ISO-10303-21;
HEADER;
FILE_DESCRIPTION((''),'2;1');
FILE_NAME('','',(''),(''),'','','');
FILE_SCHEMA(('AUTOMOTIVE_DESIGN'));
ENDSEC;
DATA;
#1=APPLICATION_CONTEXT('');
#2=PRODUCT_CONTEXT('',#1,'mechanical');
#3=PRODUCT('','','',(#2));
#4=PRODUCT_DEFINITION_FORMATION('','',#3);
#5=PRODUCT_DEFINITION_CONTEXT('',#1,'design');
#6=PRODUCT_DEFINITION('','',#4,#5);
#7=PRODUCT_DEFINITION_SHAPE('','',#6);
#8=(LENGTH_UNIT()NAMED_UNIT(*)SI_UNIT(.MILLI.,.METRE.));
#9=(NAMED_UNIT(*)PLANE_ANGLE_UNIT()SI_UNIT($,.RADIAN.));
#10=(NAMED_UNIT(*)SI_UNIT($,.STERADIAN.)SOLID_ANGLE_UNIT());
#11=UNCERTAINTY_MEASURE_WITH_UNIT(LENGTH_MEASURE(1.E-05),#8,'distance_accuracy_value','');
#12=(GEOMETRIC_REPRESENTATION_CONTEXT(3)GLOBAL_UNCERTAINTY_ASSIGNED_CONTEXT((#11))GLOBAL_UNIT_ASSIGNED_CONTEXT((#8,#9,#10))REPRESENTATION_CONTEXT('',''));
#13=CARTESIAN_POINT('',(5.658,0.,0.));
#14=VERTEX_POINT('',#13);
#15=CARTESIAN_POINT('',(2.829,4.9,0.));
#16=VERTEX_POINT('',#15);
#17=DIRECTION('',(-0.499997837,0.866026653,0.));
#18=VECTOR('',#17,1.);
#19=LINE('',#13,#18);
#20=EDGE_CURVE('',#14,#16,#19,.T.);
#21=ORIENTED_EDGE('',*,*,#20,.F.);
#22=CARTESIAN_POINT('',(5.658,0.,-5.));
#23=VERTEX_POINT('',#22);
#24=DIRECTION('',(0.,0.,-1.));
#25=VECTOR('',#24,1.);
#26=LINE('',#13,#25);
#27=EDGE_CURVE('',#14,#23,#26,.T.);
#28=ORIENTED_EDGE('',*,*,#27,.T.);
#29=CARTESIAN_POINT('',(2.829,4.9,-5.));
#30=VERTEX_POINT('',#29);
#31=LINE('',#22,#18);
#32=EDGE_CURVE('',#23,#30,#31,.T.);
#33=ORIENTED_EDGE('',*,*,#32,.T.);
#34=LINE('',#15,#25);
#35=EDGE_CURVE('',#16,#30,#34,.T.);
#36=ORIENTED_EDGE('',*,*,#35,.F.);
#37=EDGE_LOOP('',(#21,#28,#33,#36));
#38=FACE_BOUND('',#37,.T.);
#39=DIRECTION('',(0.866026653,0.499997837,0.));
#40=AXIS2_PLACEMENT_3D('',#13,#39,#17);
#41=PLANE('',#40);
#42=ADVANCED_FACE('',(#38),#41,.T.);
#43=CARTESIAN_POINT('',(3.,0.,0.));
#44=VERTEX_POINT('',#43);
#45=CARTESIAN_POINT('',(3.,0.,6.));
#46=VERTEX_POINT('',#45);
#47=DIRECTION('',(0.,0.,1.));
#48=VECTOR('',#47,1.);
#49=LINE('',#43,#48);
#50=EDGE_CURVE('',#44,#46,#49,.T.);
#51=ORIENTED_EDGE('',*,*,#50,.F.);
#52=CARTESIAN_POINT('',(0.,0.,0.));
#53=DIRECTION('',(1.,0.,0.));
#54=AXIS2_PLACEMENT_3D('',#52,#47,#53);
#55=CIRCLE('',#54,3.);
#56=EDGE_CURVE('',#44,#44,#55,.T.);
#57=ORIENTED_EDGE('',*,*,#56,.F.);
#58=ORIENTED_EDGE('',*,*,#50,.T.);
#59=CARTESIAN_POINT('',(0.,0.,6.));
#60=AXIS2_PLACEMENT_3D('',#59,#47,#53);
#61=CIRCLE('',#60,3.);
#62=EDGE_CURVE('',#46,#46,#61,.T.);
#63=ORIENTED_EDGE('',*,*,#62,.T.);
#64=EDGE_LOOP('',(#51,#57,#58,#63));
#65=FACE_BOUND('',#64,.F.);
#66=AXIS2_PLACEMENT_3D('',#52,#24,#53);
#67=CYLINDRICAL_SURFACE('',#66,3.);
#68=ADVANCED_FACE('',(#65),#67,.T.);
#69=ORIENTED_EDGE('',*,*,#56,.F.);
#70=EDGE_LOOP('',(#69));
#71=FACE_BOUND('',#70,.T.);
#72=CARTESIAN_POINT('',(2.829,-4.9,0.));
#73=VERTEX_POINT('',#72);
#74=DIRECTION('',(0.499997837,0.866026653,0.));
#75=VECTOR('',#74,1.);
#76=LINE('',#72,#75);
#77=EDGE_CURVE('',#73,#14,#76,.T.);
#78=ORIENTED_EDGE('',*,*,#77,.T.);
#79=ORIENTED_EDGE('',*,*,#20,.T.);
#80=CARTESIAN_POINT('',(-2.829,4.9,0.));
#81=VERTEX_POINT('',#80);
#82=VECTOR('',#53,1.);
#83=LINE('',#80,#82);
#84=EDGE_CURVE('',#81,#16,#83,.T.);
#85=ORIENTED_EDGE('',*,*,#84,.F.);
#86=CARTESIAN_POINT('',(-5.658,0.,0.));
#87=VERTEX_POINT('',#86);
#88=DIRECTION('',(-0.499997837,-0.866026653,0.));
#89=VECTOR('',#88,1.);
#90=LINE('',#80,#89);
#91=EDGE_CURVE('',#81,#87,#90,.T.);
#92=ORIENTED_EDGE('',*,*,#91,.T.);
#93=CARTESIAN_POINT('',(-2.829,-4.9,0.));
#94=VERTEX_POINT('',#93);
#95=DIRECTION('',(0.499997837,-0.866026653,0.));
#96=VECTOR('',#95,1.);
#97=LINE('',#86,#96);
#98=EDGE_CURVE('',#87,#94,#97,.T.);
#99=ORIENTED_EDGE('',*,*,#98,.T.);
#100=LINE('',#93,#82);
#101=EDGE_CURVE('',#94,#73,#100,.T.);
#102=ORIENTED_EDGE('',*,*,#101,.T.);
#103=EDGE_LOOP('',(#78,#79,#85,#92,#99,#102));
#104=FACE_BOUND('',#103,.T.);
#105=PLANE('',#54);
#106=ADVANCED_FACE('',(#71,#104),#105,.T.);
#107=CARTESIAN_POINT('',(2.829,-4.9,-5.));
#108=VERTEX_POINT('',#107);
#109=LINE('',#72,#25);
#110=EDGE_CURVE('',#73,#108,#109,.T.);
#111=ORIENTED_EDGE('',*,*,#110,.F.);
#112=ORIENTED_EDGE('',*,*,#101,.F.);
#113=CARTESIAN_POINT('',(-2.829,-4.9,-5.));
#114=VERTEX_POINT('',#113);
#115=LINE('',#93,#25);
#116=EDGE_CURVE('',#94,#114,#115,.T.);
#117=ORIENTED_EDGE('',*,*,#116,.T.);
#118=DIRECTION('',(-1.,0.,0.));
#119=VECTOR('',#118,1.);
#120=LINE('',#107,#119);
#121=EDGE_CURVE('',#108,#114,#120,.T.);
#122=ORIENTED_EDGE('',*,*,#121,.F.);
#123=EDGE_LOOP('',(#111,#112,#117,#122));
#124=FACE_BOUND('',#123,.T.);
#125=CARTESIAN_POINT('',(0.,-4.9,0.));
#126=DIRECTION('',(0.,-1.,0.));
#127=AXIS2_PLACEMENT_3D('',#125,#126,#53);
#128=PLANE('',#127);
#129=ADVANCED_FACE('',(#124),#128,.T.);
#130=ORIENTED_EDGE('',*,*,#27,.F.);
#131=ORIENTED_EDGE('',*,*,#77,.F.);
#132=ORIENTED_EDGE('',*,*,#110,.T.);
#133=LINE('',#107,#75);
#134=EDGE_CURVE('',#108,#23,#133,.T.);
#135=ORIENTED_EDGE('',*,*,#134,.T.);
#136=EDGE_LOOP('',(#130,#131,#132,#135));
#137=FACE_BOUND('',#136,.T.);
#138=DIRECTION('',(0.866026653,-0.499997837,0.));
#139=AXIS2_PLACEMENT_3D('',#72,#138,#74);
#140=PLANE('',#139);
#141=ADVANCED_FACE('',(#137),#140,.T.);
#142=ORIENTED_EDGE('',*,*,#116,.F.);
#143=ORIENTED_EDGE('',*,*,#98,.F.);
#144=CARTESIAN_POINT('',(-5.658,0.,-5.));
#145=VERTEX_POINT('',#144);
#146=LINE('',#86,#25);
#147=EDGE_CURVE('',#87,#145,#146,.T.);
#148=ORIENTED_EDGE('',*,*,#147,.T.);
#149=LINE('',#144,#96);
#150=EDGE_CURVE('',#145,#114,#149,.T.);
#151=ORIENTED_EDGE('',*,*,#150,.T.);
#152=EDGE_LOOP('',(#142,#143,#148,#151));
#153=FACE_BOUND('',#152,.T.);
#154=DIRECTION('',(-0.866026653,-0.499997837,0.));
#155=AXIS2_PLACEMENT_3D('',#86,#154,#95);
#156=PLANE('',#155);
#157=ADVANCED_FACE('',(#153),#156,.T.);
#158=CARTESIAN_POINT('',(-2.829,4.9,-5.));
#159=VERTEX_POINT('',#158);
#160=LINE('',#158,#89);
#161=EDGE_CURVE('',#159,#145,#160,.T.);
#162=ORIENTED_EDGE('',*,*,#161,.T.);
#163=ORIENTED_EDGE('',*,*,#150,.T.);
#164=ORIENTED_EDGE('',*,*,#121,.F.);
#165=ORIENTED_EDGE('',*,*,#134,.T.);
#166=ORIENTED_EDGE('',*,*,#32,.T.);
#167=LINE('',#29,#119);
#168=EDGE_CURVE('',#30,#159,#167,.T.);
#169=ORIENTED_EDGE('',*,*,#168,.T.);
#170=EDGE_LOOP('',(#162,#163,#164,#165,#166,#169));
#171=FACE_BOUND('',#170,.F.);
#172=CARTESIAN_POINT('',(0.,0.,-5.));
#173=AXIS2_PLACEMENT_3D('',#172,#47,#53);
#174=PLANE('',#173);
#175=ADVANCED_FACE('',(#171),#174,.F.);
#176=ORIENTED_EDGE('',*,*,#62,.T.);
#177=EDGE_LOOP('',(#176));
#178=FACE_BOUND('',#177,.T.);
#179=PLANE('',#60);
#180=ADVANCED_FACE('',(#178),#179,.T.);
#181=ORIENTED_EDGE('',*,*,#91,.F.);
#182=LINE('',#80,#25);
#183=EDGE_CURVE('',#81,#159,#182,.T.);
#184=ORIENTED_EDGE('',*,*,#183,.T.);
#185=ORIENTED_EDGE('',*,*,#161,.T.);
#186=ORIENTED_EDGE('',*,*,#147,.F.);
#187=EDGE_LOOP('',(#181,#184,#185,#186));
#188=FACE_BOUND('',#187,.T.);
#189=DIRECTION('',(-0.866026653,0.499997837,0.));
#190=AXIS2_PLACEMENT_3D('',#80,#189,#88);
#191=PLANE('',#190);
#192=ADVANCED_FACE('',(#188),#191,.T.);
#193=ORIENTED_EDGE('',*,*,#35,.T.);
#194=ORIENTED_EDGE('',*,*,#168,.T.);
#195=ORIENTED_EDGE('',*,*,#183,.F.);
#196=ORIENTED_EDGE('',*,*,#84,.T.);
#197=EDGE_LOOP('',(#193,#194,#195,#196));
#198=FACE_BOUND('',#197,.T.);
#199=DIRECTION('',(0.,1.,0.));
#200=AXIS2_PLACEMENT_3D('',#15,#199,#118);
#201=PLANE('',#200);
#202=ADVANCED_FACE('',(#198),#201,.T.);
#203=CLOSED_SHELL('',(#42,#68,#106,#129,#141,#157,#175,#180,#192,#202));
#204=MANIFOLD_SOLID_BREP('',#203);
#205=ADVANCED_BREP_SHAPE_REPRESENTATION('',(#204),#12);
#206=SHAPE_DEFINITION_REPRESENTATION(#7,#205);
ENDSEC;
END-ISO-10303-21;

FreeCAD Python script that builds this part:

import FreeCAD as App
import Part
import Sketcher
from FreeCAD import Vector
Q = App.Units.Quantity

doc = App.newDocument("Part")
body = doc.addObject("PartDesign::Body", "Body")

# Sketch on XY plane
sketch1 = body.newObject("Sketcher::SketchObject", "Sketch")
sketch1.AttachmentSupport = (doc.getObject("XY_Plane"), [""])
sketch1.MapMode = "FlatFace"
sketch1.addGeometry(Part.Circle(Vector(0, 0, 0), Vector(0, 0, 1), 3), False)
sketch1.addConstraint([
    Sketcher.Constraint("Coincident", 0, 3, -1, 1),
    Sketcher.Constraint("Diameter", 0, 6.0),
])
pad1 = body.newObject("PartDesign::Pad", "Pad")
pad1.Profile = sketch1
pad1.Length = 6

# Sketch on XY plane
sketch2 = body.newObject("Sketcher::SketchObject", "Sketch001")
sketch2.AttachmentSupport = (doc.getObject("XY_Plane"), [""])
sketch2.MapMode = "FlatFace"
sketch2.addGeometry([
    Part.LineSegment(Vector(6, 0, 0), Vector(3, 5, 0)),  # 0
    Part.LineSegment(Vector(3, 5, 0), Vector(-3, 5, 0)),  # 1
    Part.LineSegment(Vector(-3, 5, 0), Vector(-6, 0, 0)),  # 2
    Part.LineSegment(Vector(-6, 0, 0), Vector(-3, -5, 0)),  # 3
    Part.LineSegment(Vector(-3, -5, 0), Vector(3, -5, 0)),  # 4
    Part.LineSegment(Vector(3, -5, 0), Vector(6, 0, 0)),  # 5
], False)
sketch2.addConstraint([
    Sketcher.Constraint("Coincident", 0, 2, 1, 1),
    Sketcher.Constraint("Coincident", 1, 2, 2, 1),
    Sketcher.Constraint("Coincident", 2, 2, 3, 1),
    Sketcher.Constraint("Coincident", 3, 2, 4, 1),
    Sketcher.Constraint("Coincident", 4, 2, 5, 1),
    Sketcher.Constraint("Coincident", 5, 2, 0, 1),
    Sketcher.Constraint("Horizontal", 1),
    Sketcher.Constraint("Horizontal", 4),
    Sketcher.Constraint("Symmetric", 0, 2, 3, 2, -1, 1),
    Sketcher.Constraint("Symmetric", 2, 2, 5, 2, -1, 1),
    Sketcher.Constraint("PointOnObject", 2, 2, -1),
    Sketcher.Constraint("Parallel", 2, 5),
    Sketcher.Constraint("Vertical", 1, 2, 3, 2),
    Sketcher.Constraint("DistanceY", 3, 2, 1, 2, 9.8),
    Sketcher.Constraint("Angle", 0, Q("119.9999 deg")),
    Sketcher.Constraint("DistanceX", 1, 2, 1, 1, 5.658),
])
pad2 = body.newObject("PartDesign::Pad", "Pad001")
pad2.Profile = sketch2
pad2.Length = 5
pad2.Reversed = True

doc.recompute()
